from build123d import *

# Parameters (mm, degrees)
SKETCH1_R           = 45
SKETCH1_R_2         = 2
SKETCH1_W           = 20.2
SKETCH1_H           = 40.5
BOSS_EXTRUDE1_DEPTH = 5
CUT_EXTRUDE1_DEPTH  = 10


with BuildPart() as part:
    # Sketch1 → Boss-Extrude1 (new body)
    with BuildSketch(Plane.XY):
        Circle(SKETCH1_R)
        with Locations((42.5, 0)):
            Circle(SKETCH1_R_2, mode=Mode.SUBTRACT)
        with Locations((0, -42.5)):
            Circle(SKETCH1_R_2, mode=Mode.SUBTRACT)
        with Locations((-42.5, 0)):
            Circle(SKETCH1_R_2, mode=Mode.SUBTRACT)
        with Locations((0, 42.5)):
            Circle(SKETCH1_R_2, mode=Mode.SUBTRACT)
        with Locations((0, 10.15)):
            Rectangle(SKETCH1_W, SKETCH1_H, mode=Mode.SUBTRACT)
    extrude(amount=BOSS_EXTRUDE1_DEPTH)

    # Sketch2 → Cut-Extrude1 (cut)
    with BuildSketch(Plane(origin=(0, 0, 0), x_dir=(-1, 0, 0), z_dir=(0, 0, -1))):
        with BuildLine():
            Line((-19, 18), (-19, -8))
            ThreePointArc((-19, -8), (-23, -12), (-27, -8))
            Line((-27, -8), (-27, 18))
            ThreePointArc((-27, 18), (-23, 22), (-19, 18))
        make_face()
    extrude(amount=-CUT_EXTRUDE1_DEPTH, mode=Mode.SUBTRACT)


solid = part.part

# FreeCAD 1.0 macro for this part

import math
import FreeCAD as App
import Part
import Sketcher
from FreeCAD import Vector


def add_polygon(sketch, points):
    """Adds a closed chain of lines whose ends are joined by coincident constraints."""
    first, n = sketch.GeometryCount, len(points)
    for a, b in zip(points, points[1:] + points[:1]):
        sketch.addGeometry(Part.LineSegment(App.Vector(*a, 0), App.Vector(*b, 0)), False)
    for i in range(n):
        sketch.addConstraint(Sketcher.Constraint("Coincident", first + i, 2, first + (i + 1) % n, 1))

doc = App.newDocument("Part")
params = doc.addObject("Spreadsheet::Sheet", "Params")
for row, (alias, value) in enumerate([
    ("sketch1_diameter", "90 mm"),
    ("sketch1_diameter2", "4 mm"),
    ("sketch1_width", "20.2 mm"),
    ("sketch1_height", "40.5 mm"),
    ("pad1_length", "5 mm"),
    ("sketch2_radius", "4 mm"),
    ("sketch2_height", "26 mm"),
    ("pocket1_length", "10 mm"),
], start=1):
    params.set(f"A{row}", alias)
    params.set(f"B{row}", "=" + value)
    params.setAlias(f"B{row}", alias)

body = doc.addObject("PartDesign::Body", "Body")

# Sketch on XY plane
sketch1 = doc.addObject("Sketcher::SketchObject", "Sketch")
body.addObject(sketch1)
sketch1.AttachmentSupport = (doc.XY_Plane, [""])
sketch1.MapMode = "FlatFace"
sketch1.addGeometry(Part.Circle(Vector(0, 0, 0), Vector(0, 0, 1), 45), False)  # 0
sketch1.addGeometry(Part.Circle(Vector(0, -42.5, 0), Vector(0, 0, 1), 2), False)  # 1
sketch1.addGeometry(Part.Circle(Vector(-42.5, 0, 0), Vector(0, 0, 1), 2), False)  # 2
add_polygon(sketch1, [(10.1, -10.1), (-10.1, -10.1), (-10.1, 30.4), (10.1, 30.4)])  # lines 3-6
sketch1.addGeometry(Part.Circle(Vector(42.5, 0, 0), Vector(0, 0, 1), 2), False)  # 7
sketch1.addGeometry(Part.Circle(Vector(0, 42.5, 0), Vector(0, 0, 1), 2), False)  # 8
sketch1.addConstraint([
    Sketcher.Constraint("Horizontal", 3),
    Sketcher.Constraint("Vertical", 4),
    Sketcher.Constraint("Horizontal", 5),
    Sketcher.Constraint("Vertical", 6),
    Sketcher.Constraint("Coincident", 0, 3, -1, 1),
    Sketcher.Constraint("Equal", 1, 2),
    Sketcher.Constraint("Equal", 2, 7),
    Sketcher.Constraint("Equal", 7, 8),
    Sketcher.Constraint("Symmetric", 2, 3, 7, 3, -1, 1),
    Sketcher.Constraint("Symmetric", 1, 3, 8, 3, -1, 1),
    Sketcher.Constraint("PointOnObject", 1, 3, -2),
    Sketcher.Constraint("PointOnObject", 2, 3, -1),
    Sketcher.Constraint("Diameter", 0, 90.0),
    Sketcher.Constraint("Diameter", 1, 4.0),
    Sketcher.Constraint("DistanceX", 3, 2, 3, 1, 20.2),
    Sketcher.Constraint("DistanceY", 4, 1, 4, 2, 40.5),
    Sketcher.Constraint("DistanceX", 2, 3, 7, 3, 85.0),
    Sketcher.Constraint("DistanceY", 1, 3, 8, 3, 85.0),
    Sketcher.Constraint("DistanceX", 3, 2, -1, 1, 10.1),
    Sketcher.Constraint("DistanceY", 3, 2, -1, 1, 10.1),
])
sketch1.setExpression("Constraints[16]", "Params.sketch1_diameter")
sketch1.setExpression("Constraints[17]", "Params.sketch1_diameter2")
sketch1.setExpression("Constraints[18]", "Params.sketch1_width")
sketch1.setExpression("Constraints[19]", "Params.sketch1_height")
pad1 = doc.addObject("PartDesign::Pad", "Pad")
body.addObject(pad1)
pad1.Profile = sketch1
pad1.setExpression("Length", "Params.pad1_length")

# Sketch on XY plane
sketch2 = doc.addObject("Sketcher::SketchObject", "Sketch001")
body.addObject(sketch2)
sketch2.AttachmentSupport = (doc.XY_Plane, [""])
sketch2.MapMode = "FlatFace"
sketch2.addGeometry([
    Part.LineSegment(Vector(19, -8, 0), Vector(19, 18, 0)),
    Part.ArcOfCircle(Part.Circle(Vector(23, 18, 0), Vector(0, 0, 1), 4), math.radians(0), math.radians(180)),
    Part.LineSegment(Vector(27, 18, 0), Vector(27, -8, 0)),
    Part.ArcOfCircle(Part.Circle(Vector(23, -8, 0), Vector(0, 0, 1), 4), math.radians(180), math.radians(360)),
], False)
sketch2.addConstraint([
    Sketcher.Constraint("Tangent", 0, 2, 1, 2),
    Sketcher.Constraint("Tangent", 1, 1, 2, 1),
    Sketcher.Constraint("Tangent", 2, 2, 3, 2),
    Sketcher.Constraint("Tangent", 3, 1, 0, 1),
    Sketcher.Constraint("Vertical", 0),
    Sketcher.Constraint("Vertical", 2),
    Sketcher.Constraint("Radius", 1, 4.0),
    Sketcher.Constraint("DistanceY", 0, 1, 0, 2, 26.0),
    Sketcher.Constraint("DistanceX", -1, 1, 1, 3, 23.0),
    Sketcher.Constraint("DistanceY", -1, 1, 1, 3, 18.0),
])
sketch2.setExpression("Constraints[6]", "Params.sketch2_radius")
sketch2.setExpression("Constraints[7]", "Params.sketch2_height")
pocket1 = doc.addObject("PartDesign::Pocket", "Pocket")
body.addObject(pocket1)
pocket1.Profile = sketch2
pocket1.setExpression("Length", "Params.pocket1_length")
pocket1.Reversed = True

doc.recompute()
